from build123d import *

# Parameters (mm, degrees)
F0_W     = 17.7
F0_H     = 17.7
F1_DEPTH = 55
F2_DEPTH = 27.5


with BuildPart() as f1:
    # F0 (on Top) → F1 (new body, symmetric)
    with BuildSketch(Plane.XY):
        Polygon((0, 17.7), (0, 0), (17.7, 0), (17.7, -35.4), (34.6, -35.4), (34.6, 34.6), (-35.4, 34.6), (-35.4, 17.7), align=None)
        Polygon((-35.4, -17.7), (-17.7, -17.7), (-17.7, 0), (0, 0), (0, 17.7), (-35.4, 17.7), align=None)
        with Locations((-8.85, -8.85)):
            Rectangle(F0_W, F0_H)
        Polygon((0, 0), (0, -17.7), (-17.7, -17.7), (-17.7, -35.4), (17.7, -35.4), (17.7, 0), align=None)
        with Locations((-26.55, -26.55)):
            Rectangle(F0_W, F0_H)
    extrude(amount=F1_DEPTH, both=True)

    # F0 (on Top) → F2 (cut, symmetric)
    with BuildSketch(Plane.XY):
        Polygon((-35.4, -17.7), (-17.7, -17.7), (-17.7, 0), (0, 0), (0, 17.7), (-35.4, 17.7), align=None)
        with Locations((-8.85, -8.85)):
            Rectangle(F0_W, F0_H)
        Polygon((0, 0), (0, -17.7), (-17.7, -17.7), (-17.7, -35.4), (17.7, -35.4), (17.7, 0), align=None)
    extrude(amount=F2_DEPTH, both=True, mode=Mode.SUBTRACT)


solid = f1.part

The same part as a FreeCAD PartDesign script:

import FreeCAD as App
import Part
import Sketcher

V = App.Vector
Q = App.Units.Quantity

doc = App.newDocument("Part")
body = doc.addObject("PartDesign::Body", "Body")

sketch1 = doc.addObject("Sketcher::SketchObject", "Sketch")
body.addObject(sketch1)
sketch1.AttachmentSupport = (doc.XY_Plane, [""])
sketch1.MapMode = "FlatFace"
sketch1.addGeometry([
    Part.LineSegment(V(35, -35, 0), V(35, 35, 0)),
    Part.LineSegment(V(35, 35, 0), V(-35, 35, 0)),
    Part.LineSegment(V(-35, 35, 0), V(-35, -35, 0)),
    Part.LineSegment(V(-35, -35, 0), V(35, -35, 0)),
], False)
sketch1.addConstraint([
    Sketcher.Constraint("Coincident", 0, 2, 1, 1),
    Sketcher.Constraint("Coincident", 1, 2, 2, 1),
    Sketcher.Constraint("Coincident", 2, 2, 3, 1),
    Sketcher.Constraint("Coincident", 3, 2, 0, 1),
    Sketcher.Constraint("Vertical", 0),
    Sketcher.Constraint("Horizontal", 1),
    Sketcher.Constraint("Vertical", 2),
    Sketcher.Constraint("Horizontal", 3),
    Sketcher.Constraint("Equal", 3, 0),
    Sketcher.Constraint("DistanceX", 1, 2, 1, 1, Q("70 mm")),
    Sketcher.Constraint("DistanceX", -1, 1, 0, 2, Q("34.6 mm")),
    Sketcher.Constraint("DistanceY", -1, 1, 0, 2, Q("34.6 mm")),
])
pad1 = doc.addObject("PartDesign::Pad", "Pad")
body.addObject(pad1)
pad1.Profile = sketch1
pad1.Length = 110
pad1.Midplane = True

sketch2 = doc.addObject("Sketcher::SketchObject", "Sketch001")
body.addObject(sketch2)
sketch2.AttachmentSupport = (doc.XY_Plane, [""])
sketch2.MapMode = "FlatFace"
sketch2.addGeometry([
    Part.LineSegment(V(-35, -18, 0), V(-18, -18, 0)),
    Part.LineSegment(V(-18, -18, 0), V(-18, -35, 0)),
    Part.LineSegment(V(-18, -35, 0), V(18, -35, 0)),
    Part.LineSegment(V(18, -35, 0), V(18, 0, 0)),
    Part.LineSegment(V(18, 0, 0), V(0, 0, 0)),
    Part.LineSegment(V(0, 0, 0), V(0, 18, 0)),
    Part.LineSegment(V(0, 18, 0), V(-35, 18, 0)),
    Part.LineSegment(V(-35, 18, 0), V(-35, -18, 0)),
], False)
sketch2.addConstraint([
    Sketcher.Constraint("Coincident", 0, 2, 1, 1),
    Sketcher.Constraint("Coincident", 1, 2, 2, 1),
    Sketcher.Constraint("Coincident", 2, 2, 3, 1),
    Sketcher.Constraint("Coincident", 3, 2, 4, 1),
    Sketcher.Constraint("Coincident", 4, 2, 5, 1),
    Sketcher.Constraint("Coincident", 5, 2, 6, 1),
    Sketcher.Constraint("Coincident", 6, 2, 7, 1),
    Sketcher.Constraint("Coincident", 7, 2, 0, 1),
    Sketcher.Constraint("Horizontal", 0),
    Sketcher.Constraint("Vertical", 1),
    Sketcher.Constraint("Horizontal", 2),
    Sketcher.Constraint("Vertical", 3),
    Sketcher.Constraint("Horizontal", 4),
    Sketcher.Constraint("Vertical", 5),
    Sketcher.Constraint("Horizontal", 6),
    Sketcher.Constraint("Vertical", 7),
    Sketcher.Constraint("Coincident", 4, 2, -1, 1),
    Sketcher.Constraint("Equal", 0, 4),
    Sketcher.Constraint("Equal", 4, 1),
    Sketcher.Constraint("Equal", 6, 3),
    Sketcher.Constraint("Equal", 1, 5),
    Sketcher.Constraint("DistanceX", 0, 1, 0, 2, Q("17.7 mm")),
    Sketcher.Constraint("DistanceX", 2, 1, 2, 2, Q("35.4 mm")),
])
pocket1 = doc.addObject("PartDesign::Pocket", "Pocket")
body.addObject(pocket1)
pocket1.Profile = sketch2
pocket1.Length = 55
pocket1.Midplane = True

doc.recompute()
